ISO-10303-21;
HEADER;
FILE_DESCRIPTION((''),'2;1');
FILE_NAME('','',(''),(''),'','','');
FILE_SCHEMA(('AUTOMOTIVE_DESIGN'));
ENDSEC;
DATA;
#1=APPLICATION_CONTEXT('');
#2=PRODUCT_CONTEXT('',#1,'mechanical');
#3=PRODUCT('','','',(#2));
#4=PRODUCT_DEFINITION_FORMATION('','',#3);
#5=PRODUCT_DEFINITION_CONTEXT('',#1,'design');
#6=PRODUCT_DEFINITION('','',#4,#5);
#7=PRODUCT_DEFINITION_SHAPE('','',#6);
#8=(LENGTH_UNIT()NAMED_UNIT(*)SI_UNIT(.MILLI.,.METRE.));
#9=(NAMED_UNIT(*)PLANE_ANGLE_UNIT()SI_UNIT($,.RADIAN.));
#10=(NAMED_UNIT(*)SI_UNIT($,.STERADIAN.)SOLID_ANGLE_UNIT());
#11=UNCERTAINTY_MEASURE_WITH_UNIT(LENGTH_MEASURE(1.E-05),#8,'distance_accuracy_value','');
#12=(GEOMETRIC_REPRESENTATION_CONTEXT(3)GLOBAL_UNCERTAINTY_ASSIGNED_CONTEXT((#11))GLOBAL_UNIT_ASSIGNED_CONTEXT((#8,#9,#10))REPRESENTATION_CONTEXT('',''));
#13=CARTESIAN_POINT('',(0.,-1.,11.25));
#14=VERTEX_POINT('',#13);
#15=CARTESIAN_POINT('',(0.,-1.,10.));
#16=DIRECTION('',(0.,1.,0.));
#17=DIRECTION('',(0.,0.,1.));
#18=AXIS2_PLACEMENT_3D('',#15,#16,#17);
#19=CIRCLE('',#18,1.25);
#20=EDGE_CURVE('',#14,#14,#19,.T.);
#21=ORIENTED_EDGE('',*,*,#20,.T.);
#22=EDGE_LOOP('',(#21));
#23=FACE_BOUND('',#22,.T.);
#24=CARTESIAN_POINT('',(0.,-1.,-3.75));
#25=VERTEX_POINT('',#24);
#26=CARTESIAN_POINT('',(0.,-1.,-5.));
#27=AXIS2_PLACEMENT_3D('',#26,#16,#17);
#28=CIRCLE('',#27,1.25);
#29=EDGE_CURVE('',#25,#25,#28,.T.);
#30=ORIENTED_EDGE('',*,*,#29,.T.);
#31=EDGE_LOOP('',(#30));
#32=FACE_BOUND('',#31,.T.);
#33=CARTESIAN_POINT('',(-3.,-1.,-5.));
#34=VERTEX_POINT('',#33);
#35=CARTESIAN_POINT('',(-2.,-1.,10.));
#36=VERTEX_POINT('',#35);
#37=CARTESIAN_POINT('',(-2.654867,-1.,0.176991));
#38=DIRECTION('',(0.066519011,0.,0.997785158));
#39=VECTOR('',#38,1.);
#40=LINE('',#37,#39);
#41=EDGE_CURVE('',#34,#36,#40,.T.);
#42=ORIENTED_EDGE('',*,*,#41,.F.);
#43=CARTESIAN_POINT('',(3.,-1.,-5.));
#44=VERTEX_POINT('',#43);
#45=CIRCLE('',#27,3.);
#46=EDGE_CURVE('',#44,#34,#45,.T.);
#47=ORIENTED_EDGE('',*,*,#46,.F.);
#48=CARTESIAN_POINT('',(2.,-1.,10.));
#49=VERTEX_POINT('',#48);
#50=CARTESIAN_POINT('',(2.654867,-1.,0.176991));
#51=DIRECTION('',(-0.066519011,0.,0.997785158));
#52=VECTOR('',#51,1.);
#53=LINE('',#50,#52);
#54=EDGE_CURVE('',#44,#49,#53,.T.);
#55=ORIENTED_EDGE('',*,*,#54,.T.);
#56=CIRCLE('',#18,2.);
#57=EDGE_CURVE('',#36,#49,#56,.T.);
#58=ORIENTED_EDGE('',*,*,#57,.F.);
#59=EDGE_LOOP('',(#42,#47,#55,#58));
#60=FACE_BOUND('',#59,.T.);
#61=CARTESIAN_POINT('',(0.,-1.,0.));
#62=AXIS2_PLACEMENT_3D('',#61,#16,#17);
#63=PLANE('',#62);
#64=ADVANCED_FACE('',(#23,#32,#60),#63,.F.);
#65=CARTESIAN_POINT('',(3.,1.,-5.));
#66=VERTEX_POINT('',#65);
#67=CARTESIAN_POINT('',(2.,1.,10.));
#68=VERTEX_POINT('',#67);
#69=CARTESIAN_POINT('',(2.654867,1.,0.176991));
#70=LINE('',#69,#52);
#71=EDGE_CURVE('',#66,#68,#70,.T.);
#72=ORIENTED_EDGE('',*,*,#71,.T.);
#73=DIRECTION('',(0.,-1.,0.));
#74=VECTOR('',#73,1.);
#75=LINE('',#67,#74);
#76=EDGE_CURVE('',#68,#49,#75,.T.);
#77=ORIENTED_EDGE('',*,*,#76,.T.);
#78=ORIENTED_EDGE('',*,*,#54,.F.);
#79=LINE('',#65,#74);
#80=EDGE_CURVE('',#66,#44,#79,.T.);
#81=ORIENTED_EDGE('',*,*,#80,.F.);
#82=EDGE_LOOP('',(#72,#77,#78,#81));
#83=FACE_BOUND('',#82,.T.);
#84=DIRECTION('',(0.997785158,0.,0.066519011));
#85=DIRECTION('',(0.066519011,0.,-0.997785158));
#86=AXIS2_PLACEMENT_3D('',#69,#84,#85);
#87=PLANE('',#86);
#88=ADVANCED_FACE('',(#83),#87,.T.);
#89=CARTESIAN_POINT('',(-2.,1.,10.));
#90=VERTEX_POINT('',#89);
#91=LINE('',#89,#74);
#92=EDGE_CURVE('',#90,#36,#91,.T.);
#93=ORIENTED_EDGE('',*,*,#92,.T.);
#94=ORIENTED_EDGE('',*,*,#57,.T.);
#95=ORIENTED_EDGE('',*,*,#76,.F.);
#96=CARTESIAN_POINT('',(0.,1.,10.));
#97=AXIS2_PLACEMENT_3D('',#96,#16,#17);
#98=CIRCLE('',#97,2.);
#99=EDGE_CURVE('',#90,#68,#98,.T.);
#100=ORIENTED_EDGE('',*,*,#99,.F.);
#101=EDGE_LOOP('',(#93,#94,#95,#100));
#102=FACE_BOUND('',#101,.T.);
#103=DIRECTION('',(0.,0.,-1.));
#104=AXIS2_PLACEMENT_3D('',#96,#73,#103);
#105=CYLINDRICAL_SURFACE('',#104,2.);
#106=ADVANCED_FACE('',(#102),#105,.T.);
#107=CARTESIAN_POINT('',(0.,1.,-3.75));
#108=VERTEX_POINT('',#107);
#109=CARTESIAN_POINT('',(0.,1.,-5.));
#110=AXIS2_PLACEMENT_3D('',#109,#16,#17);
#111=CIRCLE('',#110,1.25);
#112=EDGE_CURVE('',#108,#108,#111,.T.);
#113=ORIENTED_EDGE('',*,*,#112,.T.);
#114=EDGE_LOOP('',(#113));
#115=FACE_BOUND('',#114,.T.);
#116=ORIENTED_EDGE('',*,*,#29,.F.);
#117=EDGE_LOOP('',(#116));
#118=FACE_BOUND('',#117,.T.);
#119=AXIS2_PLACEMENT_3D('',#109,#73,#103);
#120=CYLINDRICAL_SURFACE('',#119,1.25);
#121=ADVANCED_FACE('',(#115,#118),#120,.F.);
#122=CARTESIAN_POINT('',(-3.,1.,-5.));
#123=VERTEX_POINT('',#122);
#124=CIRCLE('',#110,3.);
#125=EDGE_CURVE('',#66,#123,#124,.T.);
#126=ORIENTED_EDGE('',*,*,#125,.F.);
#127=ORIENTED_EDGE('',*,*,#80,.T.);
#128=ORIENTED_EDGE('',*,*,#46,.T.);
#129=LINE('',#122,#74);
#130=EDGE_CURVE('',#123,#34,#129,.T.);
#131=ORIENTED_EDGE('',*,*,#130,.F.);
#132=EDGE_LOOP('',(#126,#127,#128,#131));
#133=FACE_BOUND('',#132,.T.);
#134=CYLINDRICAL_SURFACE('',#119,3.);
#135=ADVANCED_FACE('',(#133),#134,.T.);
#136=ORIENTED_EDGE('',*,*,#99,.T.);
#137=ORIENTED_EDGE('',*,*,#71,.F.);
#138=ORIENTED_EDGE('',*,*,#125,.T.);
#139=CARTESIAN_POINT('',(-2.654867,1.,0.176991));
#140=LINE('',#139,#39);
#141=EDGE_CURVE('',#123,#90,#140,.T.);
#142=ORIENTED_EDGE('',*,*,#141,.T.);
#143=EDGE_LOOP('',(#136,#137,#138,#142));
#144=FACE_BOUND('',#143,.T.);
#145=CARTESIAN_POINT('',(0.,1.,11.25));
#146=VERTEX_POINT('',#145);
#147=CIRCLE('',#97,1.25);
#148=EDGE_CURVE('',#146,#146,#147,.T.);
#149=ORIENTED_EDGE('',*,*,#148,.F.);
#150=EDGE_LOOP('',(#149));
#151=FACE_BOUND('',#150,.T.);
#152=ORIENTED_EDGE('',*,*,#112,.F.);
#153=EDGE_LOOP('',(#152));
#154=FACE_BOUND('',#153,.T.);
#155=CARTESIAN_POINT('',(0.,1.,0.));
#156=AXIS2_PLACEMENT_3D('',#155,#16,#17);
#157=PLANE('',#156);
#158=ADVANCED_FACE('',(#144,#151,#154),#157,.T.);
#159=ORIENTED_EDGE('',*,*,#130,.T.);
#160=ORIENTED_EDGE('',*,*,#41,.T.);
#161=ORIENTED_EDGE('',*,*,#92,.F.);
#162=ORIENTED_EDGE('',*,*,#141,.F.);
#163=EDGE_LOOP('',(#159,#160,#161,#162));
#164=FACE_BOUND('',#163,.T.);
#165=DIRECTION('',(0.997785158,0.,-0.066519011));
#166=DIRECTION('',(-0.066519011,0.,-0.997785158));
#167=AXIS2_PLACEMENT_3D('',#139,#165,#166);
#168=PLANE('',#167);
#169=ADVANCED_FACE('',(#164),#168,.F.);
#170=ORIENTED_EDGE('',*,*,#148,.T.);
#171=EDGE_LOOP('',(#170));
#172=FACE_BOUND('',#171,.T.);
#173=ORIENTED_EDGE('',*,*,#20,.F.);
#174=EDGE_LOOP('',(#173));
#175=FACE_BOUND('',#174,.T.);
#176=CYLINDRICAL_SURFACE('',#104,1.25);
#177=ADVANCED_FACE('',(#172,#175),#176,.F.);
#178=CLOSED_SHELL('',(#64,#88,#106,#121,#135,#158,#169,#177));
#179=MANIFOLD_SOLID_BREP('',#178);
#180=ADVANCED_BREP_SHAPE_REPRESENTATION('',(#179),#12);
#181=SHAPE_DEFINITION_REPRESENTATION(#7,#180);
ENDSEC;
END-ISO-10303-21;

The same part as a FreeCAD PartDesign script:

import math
import FreeCAD as App
import Part
import Sketcher

V = App.Vector

doc = App.newDocument("Part")
body = doc.addObject("PartDesign::Body", "Body")

# Sketch on XZ plane
sketch1 = doc.addObject("Sketcher::SketchObject", "Sketch")
body.addObject(sketch1)
sketch1.AttachmentSupport = (doc.XZ_Plane, [""])
sketch1.MapMode = "FlatFace"
sketch1.addGeometry(Part.ArcOfCircle(Part.Circle(V(0, -5, 0), V(0, 0, 1), 3), math.radians(180), math.radians(360)), False)
sketch1.addGeometry(Part.LineSegment(V(-3, -5, 0), V(-2.97, -4.6, 0)), False)
sketch1.addGeometry(Part.LineSegment(V(-2.97, -4.6, 0), V(-2, 10, 0)), False)
sketch1.addGeometry(Part.ArcOfCircle(Part.Circle(V(0, 10, 0), V(0, 0, 1), 2), math.radians(0), math.radians(180)), False)
sketch1.addGeometry(Part.LineSegment(V(2, 10, 0), V(2.97, -4.6, 0)), False)
sketch1.addGeometry(Part.LineSegment(V(2.97, -4.6, 0), V(3, -5, 0)), False)
sketch1.addGeometry(Part.Circle(V(0, 10, 0), V(0, 0, 1), 1.25), False)
sketch1.addGeometry(Part.Circle(V(0, -5, 0), V(0, 0, 1), 1.25), False)
sketch1.addConstraint(Sketcher.Constraint("Coincident", 0, 1, 1, 1))
sketch1.addConstraint(Sketcher.Constraint("Coincident", 1, 2, 2, 1))
sketch1.addConstraint(Sketcher.Constraint("Coincident", 2, 2, 3, 2))
sketch1.addConstraint(Sketcher.Constraint("Coincident", 3, 1, 4, 1))
sketch1.addConstraint(Sketcher.Constraint("Coincident", 4, 2, 5, 1))
sketch1.addConstraint(Sketcher.Constraint("Coincident", 5, 2, 0, 2))
sketch1.addConstraint(Sketcher.Constraint("Coincident", 6, 3, 3, 3))
sketch1.addConstraint(Sketcher.Constraint("Coincident", 7, 3, 0, 3))
sketch1.addConstraint(Sketcher.Constraint("Equal", 6, 7))
sketch1.addConstraint(Sketcher.Constraint("Symmetric", 2, 2, 3, 1, -2))
sketch1.addConstraint(Sketcher.Constraint("Symmetric", 1, 2, 4, 2, -2))
sketch1.addConstraint(Sketcher.Constraint("Symmetric", 0, 1, 5, 2, -2))
sketch1.addConstraint(Sketcher.Constraint("Parallel", 1, 2))
sketch1.addConstraint(Sketcher.Constraint("Horizontal", 7, 3, 0, 1))
sketch1.addConstraint(Sketcher.Constraint("Horizontal", 6, 3, 2, 2))
sketch1.addConstraint(Sketcher.Constraint("Radius", 0, 3.0))
sketch1.addConstraint(Sketcher.Constraint("Radius", 3, 2.0))
sketch1.addConstraint(Sketcher.Constraint("Diameter", 6, 2.5))
sketch1.addConstraint(Sketcher.Constraint("DistanceY", 0, 3, -1, 1, 5.0))
sketch1.addConstraint(Sketcher.Constraint("DistanceY", -1, 1, 3, 3, 10.0))
sketch1.addConstraint(Sketcher.Constraint("DistanceX", 1, 2, -1, 1, 2.973451))
pad1 = doc.addObject("PartDesign::Pad", "Pad")
body.addObject(pad1)
pad1.Profile = sketch1
pad1.Length = 2
pad1.Midplane = True

doc.recompute()
